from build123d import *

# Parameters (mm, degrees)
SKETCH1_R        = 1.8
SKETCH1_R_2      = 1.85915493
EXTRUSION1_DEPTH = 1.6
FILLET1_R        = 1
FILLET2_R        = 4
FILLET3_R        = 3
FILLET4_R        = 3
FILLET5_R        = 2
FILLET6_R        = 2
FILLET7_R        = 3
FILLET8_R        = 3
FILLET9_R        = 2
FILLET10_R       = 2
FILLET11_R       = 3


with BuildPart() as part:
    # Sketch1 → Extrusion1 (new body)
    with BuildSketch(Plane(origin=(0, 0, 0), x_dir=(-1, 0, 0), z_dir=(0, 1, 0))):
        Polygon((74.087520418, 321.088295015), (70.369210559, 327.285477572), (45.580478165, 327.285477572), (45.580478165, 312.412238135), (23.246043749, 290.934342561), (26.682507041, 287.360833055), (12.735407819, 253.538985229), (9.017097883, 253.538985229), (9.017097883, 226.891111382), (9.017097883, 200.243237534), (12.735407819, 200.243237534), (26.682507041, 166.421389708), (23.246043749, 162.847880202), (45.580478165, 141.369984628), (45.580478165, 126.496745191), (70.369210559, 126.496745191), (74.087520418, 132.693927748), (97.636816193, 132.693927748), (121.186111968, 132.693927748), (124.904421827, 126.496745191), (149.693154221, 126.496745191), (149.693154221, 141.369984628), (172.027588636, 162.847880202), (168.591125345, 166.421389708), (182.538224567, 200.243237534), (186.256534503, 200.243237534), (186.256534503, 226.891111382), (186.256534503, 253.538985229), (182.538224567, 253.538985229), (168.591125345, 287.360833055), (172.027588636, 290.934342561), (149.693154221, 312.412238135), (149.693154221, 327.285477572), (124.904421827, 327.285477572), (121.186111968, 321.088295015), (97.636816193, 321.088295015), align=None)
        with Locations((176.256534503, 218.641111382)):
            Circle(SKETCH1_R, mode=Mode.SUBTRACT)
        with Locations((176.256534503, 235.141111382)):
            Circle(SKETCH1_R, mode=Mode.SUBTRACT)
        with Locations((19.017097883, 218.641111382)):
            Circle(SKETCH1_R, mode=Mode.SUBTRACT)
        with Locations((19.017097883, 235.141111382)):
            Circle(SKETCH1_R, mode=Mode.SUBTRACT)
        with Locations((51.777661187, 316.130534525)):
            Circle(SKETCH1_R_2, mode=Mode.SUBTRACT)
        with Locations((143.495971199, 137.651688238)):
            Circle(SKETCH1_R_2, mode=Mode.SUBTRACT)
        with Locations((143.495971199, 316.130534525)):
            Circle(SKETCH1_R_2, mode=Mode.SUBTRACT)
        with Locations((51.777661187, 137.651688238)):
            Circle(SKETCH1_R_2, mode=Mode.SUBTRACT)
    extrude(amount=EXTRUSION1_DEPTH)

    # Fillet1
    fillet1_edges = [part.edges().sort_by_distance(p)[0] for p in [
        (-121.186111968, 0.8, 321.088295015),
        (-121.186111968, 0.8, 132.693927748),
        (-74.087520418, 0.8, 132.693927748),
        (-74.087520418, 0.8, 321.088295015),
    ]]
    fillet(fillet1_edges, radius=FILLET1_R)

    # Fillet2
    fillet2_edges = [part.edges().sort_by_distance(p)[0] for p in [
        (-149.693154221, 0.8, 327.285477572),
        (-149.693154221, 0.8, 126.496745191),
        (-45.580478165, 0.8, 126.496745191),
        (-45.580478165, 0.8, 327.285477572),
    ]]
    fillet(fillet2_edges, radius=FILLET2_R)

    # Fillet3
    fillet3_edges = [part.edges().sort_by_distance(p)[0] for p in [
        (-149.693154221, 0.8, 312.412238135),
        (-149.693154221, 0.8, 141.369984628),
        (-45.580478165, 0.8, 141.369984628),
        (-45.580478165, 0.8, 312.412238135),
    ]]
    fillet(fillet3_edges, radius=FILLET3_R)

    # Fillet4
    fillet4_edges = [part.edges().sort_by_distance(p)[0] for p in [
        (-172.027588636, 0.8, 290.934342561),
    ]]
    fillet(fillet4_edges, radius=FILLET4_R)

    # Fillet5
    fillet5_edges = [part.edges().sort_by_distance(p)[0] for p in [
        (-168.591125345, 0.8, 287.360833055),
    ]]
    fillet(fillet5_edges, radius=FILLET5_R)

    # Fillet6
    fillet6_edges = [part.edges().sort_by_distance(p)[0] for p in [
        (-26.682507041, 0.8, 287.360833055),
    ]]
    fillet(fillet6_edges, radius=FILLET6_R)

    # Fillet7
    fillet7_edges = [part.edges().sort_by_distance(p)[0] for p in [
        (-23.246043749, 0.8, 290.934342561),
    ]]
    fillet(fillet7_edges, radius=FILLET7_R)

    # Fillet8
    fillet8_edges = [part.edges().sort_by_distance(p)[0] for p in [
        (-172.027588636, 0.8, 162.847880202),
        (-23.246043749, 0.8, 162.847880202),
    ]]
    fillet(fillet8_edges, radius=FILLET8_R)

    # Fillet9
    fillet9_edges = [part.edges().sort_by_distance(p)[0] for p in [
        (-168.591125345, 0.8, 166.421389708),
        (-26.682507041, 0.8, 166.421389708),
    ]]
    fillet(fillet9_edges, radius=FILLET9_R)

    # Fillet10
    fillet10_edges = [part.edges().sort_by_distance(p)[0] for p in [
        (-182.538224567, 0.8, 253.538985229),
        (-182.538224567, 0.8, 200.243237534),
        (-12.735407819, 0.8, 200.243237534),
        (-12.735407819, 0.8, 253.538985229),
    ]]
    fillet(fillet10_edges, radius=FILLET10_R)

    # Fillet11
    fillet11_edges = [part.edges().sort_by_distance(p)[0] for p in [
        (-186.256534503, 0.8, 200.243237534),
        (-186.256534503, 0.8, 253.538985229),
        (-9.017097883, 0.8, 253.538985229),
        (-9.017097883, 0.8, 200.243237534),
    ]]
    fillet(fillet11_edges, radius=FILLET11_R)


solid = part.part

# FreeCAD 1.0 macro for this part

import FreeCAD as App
import Part
import Sketcher
from FreeCAD import Vector
Q = App.Units.Quantity


def edges_at(feature, points):
    """Names of the edges that pass closest to the given points."""
    edges = feature.Shape.Edges
    near = lambda p: min(range(len(edges)), key=lambda i: edges[i].distToShape(Part.Vertex(*p))[0])
    return sorted({f"Edge{near(p) + 1}" for p in points})


def add_polygon(sketch, points):
    """Adds a closed chain of lines whose ends are joined by coincident constraints."""
    first, n = sketch.GeometryCount, len(points)
    for a, b in zip(points, points[1:] + points[:1]):
        sketch.addGeometry(Part.LineSegment(App.Vector(*a, 0), App.Vector(*b, 0)), False)
    for i in range(n):
        sketch.addConstraint(Sketcher.Constraint("Coincident", first + i, 2, first + (i + 1) % n, 1))

doc = App.newDocument("Part")
params = doc.addObject("Spreadsheet::Sheet", "Params")
for row, (alias, value) in enumerate([
    ("sketch1_diameter", "3.6 mm"),
    ("pad1_length", "1.6 mm"),
    ("fillet_radius", "1 mm"),
    ("fillet2_radius", "4 mm"),
    ("fillet3_radius", "3 mm"),
    ("fillet4_radius", "3 mm"),
    ("fillet5_radius", "2 mm"),
    ("fillet6_radius", "2 mm"),
    ("fillet7_radius", "3 mm"),
    ("fillet8_radius", "3 mm"),
    ("fillet9_radius", "2 mm"),
    ("fillet10_radius", "2 mm"),
    ("fillet11_radius", "3 mm"),
], start=1):
    params.set(f"A{row}", alias)
    params.set(f"B{row}", "=" + value)
    params.setAlias(f"B{row}", alias)

body = doc.addObject("PartDesign::Body", "Body")

sketch1 = body.newObject("Sketcher::SketchObject", "Sketch")
sketch1.AttachmentSupport = (doc.getObject("XZ_Plane"), [""])
sketch1.MapMode = "FlatFace"
add_polygon(sketch1, [(-74.1, 321.1), (-70.4, 327.3), (-45.6, 327.3), (-45.6, 312.4), (-23.2, 290.9), (-26.7, 287.4), (-12.7, 253.5), (-9, 253.5), (-9, 200.2), (-12.7, 200.2), (-26.7, 166.4), (-23.2, 162.8), (-45.6, 141.4), (-45.6, 126.5), (-70.4, 126.5), (-74.1, 132.7), (-121.2, 132.7), (-124.9, 126.5), (-149.7, 126.5), (-149.7, 141.4), (-172, 162.8), (-168.6, 166.4), (-182.5, 200.2), (-186.3, 200.2), (-186.3, 253.5), (-182.5, 253.5), (-168.6, 287.4), (-172, 290.9), (-149.7, 312.4), (-149.7, 327.3), (-124.9, 327.3), (-121.2, 321.1)])
sketch1.addGeometry(Part.Circle(Vector(-51.8, 137.7, 0), Vector(0, 0, 1), 1.9), False)
sketch1.addGeometry(Part.Circle(Vector(-19, 218.6, 0), Vector(0, 0, 1), 1.8), False)
sketch1.addGeometry(Part.Circle(Vector(-143.5, 137.7, 0), Vector(0, 0, 1), 1.9), False)
sketch1.addGeometry(Part.Circle(Vector(-176.3, 218.6, 0), Vector(0, 0, 1), 1.8), False)
sketch1.addGeometry(Part.Circle(Vector(-19, 235.1, 0), Vector(0, 0, 1), 1.8), False)
sketch1.addGeometry(Part.Circle(Vector(-51.8, 316.1, 0), Vector(0, 0, 1), 1.9), False)
sketch1.addGeometry(Part.Circle(Vector(-176.3, 235.1, 0), Vector(0, 0, 1), 1.8), False)
sketch1.addGeometry(Part.Circle(Vector(-143.5, 316.1, 0), Vector(0, 0, 1), 1.9), False)
sketch1.addConstraint([
    Sketcher.Constraint("Horizontal", 1),
    Sketcher.Constraint("Vertical", 2),
    Sketcher.Constraint("Horizontal", 6),
    Sketcher.Constraint("Vertical", 7),
    Sketcher.Constraint("Horizontal", 8),
    Sketcher.Constraint("Vertical", 12),
    Sketcher.Constraint("Horizontal", 13),
    Sketcher.Constraint("Horizontal", 15),
    Sketcher.Constraint("Horizontal", 17),
    Sketcher.Constraint("Vertical", 18),
    Sketcher.Constraint("Horizontal", 22),
    Sketcher.Constraint("Vertical", 23),
    Sketcher.Constraint("Horizontal", 24),
    Sketcher.Constraint("Vertical", 28),
    Sketcher.Constraint("Horizontal", 29),
    Sketcher.Constraint("Horizontal", 31),
    Sketcher.Constraint("Equal", 32, 34),
    Sketcher.Constraint("Equal", 33, 35),
    Sketcher.Constraint("Equal", 35, 36),
    Sketcher.Constraint("Equal", 34, 37),
    Sketcher.Constraint("Equal", 36, 38),
    Sketcher.Constraint("Equal", 37, 39),
    Sketcher.Constraint("Perpendicular", 3, 4),
    Sketcher.Constraint("Perpendicular", 10, 11),
    Sketcher.Constraint("Parallel", 0, 16),
    Sketcher.Constraint("Perpendicular", 4, 19),
    Sketcher.Constraint("Perpendicular", 19, 20),
    Sketcher.Constraint("Parallel", 5, 21),
    Sketcher.Constraint("Parallel", 9, 25),
    Sketcher.Constraint("Perpendicular", 11, 26),
    Sketcher.Constraint("Perpendicular", 26, 27),
    Sketcher.Constraint("Parallel", 14, 30),
    Sketcher.Constraint("Horizontal", 32, 3, 34, 3),
    Sketcher.Constraint("Horizontal", 33, 3, 35, 3),
    Sketcher.Constraint("Horizontal", 36, 3, 38, 3),
    Sketcher.Constraint("Horizontal", 37, 3, 39, 3),
    Sketcher.Constraint("Horizontal", 13, 2, 16, 2),
    Sketcher.Constraint("Horizontal", 11, 2, 18, 2),
    Sketcher.Constraint("Horizontal", 10, 2, 19, 2),
    Sketcher.Constraint("Horizontal", 9, 2, 20, 2),
    Sketcher.Constraint("Horizontal", 8, 2, 21, 2),
    Sketcher.Constraint("Horizontal", 6, 2, 23, 2),
    Sketcher.Constraint("Horizontal", 4, 2, 25, 2),
    Sketcher.Constraint("Horizontal", 3, 2, 26, 2),
    Sketcher.Constraint("Horizontal", 2, 2, 27, 2),
    Sketcher.Constraint("Horizontal", 1, 2, 28, 2),
    Sketcher.Constraint("Vertical", 33, 3, 36, 3),
    Sketcher.Constraint("Vertical", 32, 3, 37, 3),
    Sketcher.Constraint("Vertical", 35, 3, 38, 3),
    Sketcher.Constraint("Vertical", 34, 3, 39, 3),
    Sketcher.Constraint("Vertical", 5, 2, 8, 2),
    Sketcher.Constraint("Vertical", 4, 2, 9, 2),
    Sketcher.Constraint("Vertical", 3, 2, 10, 2),
    Sketcher.Constraint("Vertical", 2, 2, 11, 2),
    Sketcher.Constraint("Vertical", 0, 2, 13, 2),
    Sketcher.Constraint("Vertical", 21, 2, 24, 2),
    Sketcher.Constraint("Vertical", 20, 2, 25, 2),
    Sketcher.Constraint("Vertical", 19, 2, 26, 2),
    Sketcher.Constraint("Vertical", 16, 2, 29, 2),
    Sketcher.Constraint("Vertical", 15, 2, 30, 2),
    Sketcher.Constraint("Vertical", 14, 2, 31, 2),
    Sketcher.Constraint("Equal", 13, 17),
    Sketcher.Constraint("Equal", 8, 22),
    Sketcher.Constraint("Equal", 2, 12),
    Sketcher.Constraint("Diameter", 33, Q("3.6 mm")),
    Sketcher.Constraint("DistanceX", 36, 3, 6, 2, Q("10 mm")),
    Sketcher.Constraint("DistanceX", 22, 2, 35, 3, Q("10 mm")),
    Sketcher.Constraint("Angle", 3, Q("-43.88 deg")),
    Sketcher.Constraint("DistanceY", 33, 3, 36, 3, Q("16.5 mm")),
    Sketcher.Constraint("Diameter", 32, Q("3.71831 mm")),
    Sketcher.Constraint("DistanceX", 6, 1, 6, 2, Q("3.71831 mm")),
    Sketcher.Constraint("DistanceX", 15, 2, 15, 1, Q("47.098592 mm")),
    Sketcher.Constraint("DistanceY", 2, 2, 2, 1, Q("14.873239 mm")),
    Sketcher.Constraint("DistanceY", 4, 2, 37, 3, Q("28.769701 mm")),
    Sketcher.Constraint("DistanceX", 4, 2, 5, 2, Q("13.947099 mm")),
    Sketcher.Constraint("DistanceY", 32, 3, 9, 2, Q("28.769701 mm")),
    Sketcher.Constraint("DistanceX", 15, 2, 13, 2, Q("50.816901 mm")),
    Sketcher.Constraint("DistanceX", 1, 1, 1, 2, Q("24.788732 mm")),
    Sketcher.Constraint("DistanceY", 7, 2, 7, 1, Q("53.295748 mm")),
    Sketcher.Constraint("DistanceX", 32, 3, -1, 1, Q("51.777661 mm")),
    Sketcher.Constraint("DistanceY", -1, 1, 32, 3, Q("137.651688 mm")),
    Sketcher.Constraint("DistanceY", -1, 1, 33, 3, Q("218.641111 mm")),
    Sketcher.Constraint("DistanceX", 34, 3, -1, 1, Q("143.495971 mm")),
    Sketcher.Constraint("DistanceX", 0, 2, -1, 1, Q("70.369211 mm")),
    Sketcher.Constraint("DistanceY", -1, 1, 2, 2, Q("312.412238 mm")),
    Sketcher.Constraint("DistanceY", -1, 1, 10, 2, Q("162.84788 mm")),
    Sketcher.Constraint("DistanceX", 19, 2, -1, 1, Q("172.027589 mm")),
    Sketcher.Constraint("DistanceY", 14, 2, 32, 3, Q("4.95776 mm")),
])
sketch1.setExpression("Constraints[96]", "Params.sketch1_diameter")
pad1 = body.newObject("PartDesign::Pad", "Pad")
pad1.Profile = sketch1
pad1.setExpression("Length", "Params.pad1_length")
pad1.Reversed = True
doc.recompute()

fillet = body.newObject("PartDesign::Fillet", "Fillet")
fillet.Base = (pad1, edges_at(pad1, [
    (-121.186, 0.8, 321.088),
    (-121.186, 0.8, 132.694),
    (-74.088, 0.8, 132.694),
    (-74.088, 0.8, 321.088),
]))
fillet.setExpression("Radius", "Params.fillet_radius")
doc.recompute()

fillet2 = body.newObject("PartDesign::Fillet", "Fillet001")
fillet2.Base = (fillet, edges_at(fillet, [
    (-149.693, 0.8, 327.285),
    (-149.693, 0.8, 126.497),
    (-45.58, 0.8, 126.497),
    (-45.58, 0.8, 327.285),
]))
fillet2.setExpression("Radius", "Params.fillet2_radius")
doc.recompute()

fillet3 = body.newObject("PartDesign::Fillet", "Fillet002")
fillet3.Base = (fillet2, edges_at(fillet2, [
    (-149.693, 0.8, 312.412),
    (-149.693, 0.8, 141.37),
    (-45.58, 0.8, 141.37),
    (-45.58, 0.8, 312.412),
]))
fillet3.setExpression("Radius", "Params.fillet3_radius")
doc.recompute()

fillet4 = body.newObject("PartDesign::Fillet", "Fillet003")
fillet4.Base = (fillet3, edges_at(fillet3, [(-172.028, 0.8, 290.934)]))
fillet4.setExpression("Radius", "Params.fillet4_radius")
doc.recompute()

fillet5 = body.newObject("PartDesign::Fillet", "Fillet004")
fillet5.Base = (fillet4, edges_at(fillet4, [(-168.591, 0.8, 287.361)]))
fillet5.setExpression("Radius", "Params.fillet5_radius")
doc.recompute()

fillet6 = body.newObject("PartDesign::Fillet", "Fillet005")
fillet6.Base = (fillet5, edges_at(fillet5, [(-26.683, 0.8, 287.361)]))
fillet6.setExpression("Radius", "Params.fillet6_radius")
doc.recompute()

fillet7 = body.newObject("PartDesign::Fillet", "Fillet006")
fillet7.Base = (fillet6, edges_at(fillet6, [(-23.246, 0.8, 290.934)]))
fillet7.setExpression("Radius", "Params.fillet7_radius")
doc.recompute()

fillet8 = body.newObject("PartDesign::Fillet", "Fillet007")
fillet8.Base = (fillet7, edges_at(fillet7, [(-172.028, 0.8, 162.848), (-23.246, 0.8, 162.848)]))
fillet8.setExpression("Radius", "Params.fillet8_radius")
doc.recompute()

fillet9 = body.newObject("PartDesign::Fillet", "Fillet008")
fillet9.Base = (fillet8, edges_at(fillet8, [(-168.591, 0.8, 166.421), (-26.683, 0.8, 166.421)]))
fillet9.setExpression("Radius", "Params.fillet9_radius")
doc.recompute()

fillet10 = body.newObject("PartDesign::Fillet", "Fillet009")
fillet10.Base = (fillet9, edges_at(fillet9, [
    (-182.538, 0.8, 253.539),
    (-182.538, 0.8, 200.243),
    (-12.735, 0.8, 200.243),
    (-12.735, 0.8, 253.539),
]))
fillet10.setExpression("Radius", "Params.fillet10_radius")
doc.recompute()

fillet11 = body.newObject("PartDesign::Fillet", "Fillet010")
fillet11.Base = (fillet10, edges_at(fillet10, [
    (-186.257, 0.8, 200.243),
    (-186.257, 0.8, 253.539),
    (-9.017, 0.8, 253.539),
    (-9.017, 0.8, 200.243),
]))
fillet11.setExpression("Radius", "Params.fillet11_radius")

doc.recompute()
